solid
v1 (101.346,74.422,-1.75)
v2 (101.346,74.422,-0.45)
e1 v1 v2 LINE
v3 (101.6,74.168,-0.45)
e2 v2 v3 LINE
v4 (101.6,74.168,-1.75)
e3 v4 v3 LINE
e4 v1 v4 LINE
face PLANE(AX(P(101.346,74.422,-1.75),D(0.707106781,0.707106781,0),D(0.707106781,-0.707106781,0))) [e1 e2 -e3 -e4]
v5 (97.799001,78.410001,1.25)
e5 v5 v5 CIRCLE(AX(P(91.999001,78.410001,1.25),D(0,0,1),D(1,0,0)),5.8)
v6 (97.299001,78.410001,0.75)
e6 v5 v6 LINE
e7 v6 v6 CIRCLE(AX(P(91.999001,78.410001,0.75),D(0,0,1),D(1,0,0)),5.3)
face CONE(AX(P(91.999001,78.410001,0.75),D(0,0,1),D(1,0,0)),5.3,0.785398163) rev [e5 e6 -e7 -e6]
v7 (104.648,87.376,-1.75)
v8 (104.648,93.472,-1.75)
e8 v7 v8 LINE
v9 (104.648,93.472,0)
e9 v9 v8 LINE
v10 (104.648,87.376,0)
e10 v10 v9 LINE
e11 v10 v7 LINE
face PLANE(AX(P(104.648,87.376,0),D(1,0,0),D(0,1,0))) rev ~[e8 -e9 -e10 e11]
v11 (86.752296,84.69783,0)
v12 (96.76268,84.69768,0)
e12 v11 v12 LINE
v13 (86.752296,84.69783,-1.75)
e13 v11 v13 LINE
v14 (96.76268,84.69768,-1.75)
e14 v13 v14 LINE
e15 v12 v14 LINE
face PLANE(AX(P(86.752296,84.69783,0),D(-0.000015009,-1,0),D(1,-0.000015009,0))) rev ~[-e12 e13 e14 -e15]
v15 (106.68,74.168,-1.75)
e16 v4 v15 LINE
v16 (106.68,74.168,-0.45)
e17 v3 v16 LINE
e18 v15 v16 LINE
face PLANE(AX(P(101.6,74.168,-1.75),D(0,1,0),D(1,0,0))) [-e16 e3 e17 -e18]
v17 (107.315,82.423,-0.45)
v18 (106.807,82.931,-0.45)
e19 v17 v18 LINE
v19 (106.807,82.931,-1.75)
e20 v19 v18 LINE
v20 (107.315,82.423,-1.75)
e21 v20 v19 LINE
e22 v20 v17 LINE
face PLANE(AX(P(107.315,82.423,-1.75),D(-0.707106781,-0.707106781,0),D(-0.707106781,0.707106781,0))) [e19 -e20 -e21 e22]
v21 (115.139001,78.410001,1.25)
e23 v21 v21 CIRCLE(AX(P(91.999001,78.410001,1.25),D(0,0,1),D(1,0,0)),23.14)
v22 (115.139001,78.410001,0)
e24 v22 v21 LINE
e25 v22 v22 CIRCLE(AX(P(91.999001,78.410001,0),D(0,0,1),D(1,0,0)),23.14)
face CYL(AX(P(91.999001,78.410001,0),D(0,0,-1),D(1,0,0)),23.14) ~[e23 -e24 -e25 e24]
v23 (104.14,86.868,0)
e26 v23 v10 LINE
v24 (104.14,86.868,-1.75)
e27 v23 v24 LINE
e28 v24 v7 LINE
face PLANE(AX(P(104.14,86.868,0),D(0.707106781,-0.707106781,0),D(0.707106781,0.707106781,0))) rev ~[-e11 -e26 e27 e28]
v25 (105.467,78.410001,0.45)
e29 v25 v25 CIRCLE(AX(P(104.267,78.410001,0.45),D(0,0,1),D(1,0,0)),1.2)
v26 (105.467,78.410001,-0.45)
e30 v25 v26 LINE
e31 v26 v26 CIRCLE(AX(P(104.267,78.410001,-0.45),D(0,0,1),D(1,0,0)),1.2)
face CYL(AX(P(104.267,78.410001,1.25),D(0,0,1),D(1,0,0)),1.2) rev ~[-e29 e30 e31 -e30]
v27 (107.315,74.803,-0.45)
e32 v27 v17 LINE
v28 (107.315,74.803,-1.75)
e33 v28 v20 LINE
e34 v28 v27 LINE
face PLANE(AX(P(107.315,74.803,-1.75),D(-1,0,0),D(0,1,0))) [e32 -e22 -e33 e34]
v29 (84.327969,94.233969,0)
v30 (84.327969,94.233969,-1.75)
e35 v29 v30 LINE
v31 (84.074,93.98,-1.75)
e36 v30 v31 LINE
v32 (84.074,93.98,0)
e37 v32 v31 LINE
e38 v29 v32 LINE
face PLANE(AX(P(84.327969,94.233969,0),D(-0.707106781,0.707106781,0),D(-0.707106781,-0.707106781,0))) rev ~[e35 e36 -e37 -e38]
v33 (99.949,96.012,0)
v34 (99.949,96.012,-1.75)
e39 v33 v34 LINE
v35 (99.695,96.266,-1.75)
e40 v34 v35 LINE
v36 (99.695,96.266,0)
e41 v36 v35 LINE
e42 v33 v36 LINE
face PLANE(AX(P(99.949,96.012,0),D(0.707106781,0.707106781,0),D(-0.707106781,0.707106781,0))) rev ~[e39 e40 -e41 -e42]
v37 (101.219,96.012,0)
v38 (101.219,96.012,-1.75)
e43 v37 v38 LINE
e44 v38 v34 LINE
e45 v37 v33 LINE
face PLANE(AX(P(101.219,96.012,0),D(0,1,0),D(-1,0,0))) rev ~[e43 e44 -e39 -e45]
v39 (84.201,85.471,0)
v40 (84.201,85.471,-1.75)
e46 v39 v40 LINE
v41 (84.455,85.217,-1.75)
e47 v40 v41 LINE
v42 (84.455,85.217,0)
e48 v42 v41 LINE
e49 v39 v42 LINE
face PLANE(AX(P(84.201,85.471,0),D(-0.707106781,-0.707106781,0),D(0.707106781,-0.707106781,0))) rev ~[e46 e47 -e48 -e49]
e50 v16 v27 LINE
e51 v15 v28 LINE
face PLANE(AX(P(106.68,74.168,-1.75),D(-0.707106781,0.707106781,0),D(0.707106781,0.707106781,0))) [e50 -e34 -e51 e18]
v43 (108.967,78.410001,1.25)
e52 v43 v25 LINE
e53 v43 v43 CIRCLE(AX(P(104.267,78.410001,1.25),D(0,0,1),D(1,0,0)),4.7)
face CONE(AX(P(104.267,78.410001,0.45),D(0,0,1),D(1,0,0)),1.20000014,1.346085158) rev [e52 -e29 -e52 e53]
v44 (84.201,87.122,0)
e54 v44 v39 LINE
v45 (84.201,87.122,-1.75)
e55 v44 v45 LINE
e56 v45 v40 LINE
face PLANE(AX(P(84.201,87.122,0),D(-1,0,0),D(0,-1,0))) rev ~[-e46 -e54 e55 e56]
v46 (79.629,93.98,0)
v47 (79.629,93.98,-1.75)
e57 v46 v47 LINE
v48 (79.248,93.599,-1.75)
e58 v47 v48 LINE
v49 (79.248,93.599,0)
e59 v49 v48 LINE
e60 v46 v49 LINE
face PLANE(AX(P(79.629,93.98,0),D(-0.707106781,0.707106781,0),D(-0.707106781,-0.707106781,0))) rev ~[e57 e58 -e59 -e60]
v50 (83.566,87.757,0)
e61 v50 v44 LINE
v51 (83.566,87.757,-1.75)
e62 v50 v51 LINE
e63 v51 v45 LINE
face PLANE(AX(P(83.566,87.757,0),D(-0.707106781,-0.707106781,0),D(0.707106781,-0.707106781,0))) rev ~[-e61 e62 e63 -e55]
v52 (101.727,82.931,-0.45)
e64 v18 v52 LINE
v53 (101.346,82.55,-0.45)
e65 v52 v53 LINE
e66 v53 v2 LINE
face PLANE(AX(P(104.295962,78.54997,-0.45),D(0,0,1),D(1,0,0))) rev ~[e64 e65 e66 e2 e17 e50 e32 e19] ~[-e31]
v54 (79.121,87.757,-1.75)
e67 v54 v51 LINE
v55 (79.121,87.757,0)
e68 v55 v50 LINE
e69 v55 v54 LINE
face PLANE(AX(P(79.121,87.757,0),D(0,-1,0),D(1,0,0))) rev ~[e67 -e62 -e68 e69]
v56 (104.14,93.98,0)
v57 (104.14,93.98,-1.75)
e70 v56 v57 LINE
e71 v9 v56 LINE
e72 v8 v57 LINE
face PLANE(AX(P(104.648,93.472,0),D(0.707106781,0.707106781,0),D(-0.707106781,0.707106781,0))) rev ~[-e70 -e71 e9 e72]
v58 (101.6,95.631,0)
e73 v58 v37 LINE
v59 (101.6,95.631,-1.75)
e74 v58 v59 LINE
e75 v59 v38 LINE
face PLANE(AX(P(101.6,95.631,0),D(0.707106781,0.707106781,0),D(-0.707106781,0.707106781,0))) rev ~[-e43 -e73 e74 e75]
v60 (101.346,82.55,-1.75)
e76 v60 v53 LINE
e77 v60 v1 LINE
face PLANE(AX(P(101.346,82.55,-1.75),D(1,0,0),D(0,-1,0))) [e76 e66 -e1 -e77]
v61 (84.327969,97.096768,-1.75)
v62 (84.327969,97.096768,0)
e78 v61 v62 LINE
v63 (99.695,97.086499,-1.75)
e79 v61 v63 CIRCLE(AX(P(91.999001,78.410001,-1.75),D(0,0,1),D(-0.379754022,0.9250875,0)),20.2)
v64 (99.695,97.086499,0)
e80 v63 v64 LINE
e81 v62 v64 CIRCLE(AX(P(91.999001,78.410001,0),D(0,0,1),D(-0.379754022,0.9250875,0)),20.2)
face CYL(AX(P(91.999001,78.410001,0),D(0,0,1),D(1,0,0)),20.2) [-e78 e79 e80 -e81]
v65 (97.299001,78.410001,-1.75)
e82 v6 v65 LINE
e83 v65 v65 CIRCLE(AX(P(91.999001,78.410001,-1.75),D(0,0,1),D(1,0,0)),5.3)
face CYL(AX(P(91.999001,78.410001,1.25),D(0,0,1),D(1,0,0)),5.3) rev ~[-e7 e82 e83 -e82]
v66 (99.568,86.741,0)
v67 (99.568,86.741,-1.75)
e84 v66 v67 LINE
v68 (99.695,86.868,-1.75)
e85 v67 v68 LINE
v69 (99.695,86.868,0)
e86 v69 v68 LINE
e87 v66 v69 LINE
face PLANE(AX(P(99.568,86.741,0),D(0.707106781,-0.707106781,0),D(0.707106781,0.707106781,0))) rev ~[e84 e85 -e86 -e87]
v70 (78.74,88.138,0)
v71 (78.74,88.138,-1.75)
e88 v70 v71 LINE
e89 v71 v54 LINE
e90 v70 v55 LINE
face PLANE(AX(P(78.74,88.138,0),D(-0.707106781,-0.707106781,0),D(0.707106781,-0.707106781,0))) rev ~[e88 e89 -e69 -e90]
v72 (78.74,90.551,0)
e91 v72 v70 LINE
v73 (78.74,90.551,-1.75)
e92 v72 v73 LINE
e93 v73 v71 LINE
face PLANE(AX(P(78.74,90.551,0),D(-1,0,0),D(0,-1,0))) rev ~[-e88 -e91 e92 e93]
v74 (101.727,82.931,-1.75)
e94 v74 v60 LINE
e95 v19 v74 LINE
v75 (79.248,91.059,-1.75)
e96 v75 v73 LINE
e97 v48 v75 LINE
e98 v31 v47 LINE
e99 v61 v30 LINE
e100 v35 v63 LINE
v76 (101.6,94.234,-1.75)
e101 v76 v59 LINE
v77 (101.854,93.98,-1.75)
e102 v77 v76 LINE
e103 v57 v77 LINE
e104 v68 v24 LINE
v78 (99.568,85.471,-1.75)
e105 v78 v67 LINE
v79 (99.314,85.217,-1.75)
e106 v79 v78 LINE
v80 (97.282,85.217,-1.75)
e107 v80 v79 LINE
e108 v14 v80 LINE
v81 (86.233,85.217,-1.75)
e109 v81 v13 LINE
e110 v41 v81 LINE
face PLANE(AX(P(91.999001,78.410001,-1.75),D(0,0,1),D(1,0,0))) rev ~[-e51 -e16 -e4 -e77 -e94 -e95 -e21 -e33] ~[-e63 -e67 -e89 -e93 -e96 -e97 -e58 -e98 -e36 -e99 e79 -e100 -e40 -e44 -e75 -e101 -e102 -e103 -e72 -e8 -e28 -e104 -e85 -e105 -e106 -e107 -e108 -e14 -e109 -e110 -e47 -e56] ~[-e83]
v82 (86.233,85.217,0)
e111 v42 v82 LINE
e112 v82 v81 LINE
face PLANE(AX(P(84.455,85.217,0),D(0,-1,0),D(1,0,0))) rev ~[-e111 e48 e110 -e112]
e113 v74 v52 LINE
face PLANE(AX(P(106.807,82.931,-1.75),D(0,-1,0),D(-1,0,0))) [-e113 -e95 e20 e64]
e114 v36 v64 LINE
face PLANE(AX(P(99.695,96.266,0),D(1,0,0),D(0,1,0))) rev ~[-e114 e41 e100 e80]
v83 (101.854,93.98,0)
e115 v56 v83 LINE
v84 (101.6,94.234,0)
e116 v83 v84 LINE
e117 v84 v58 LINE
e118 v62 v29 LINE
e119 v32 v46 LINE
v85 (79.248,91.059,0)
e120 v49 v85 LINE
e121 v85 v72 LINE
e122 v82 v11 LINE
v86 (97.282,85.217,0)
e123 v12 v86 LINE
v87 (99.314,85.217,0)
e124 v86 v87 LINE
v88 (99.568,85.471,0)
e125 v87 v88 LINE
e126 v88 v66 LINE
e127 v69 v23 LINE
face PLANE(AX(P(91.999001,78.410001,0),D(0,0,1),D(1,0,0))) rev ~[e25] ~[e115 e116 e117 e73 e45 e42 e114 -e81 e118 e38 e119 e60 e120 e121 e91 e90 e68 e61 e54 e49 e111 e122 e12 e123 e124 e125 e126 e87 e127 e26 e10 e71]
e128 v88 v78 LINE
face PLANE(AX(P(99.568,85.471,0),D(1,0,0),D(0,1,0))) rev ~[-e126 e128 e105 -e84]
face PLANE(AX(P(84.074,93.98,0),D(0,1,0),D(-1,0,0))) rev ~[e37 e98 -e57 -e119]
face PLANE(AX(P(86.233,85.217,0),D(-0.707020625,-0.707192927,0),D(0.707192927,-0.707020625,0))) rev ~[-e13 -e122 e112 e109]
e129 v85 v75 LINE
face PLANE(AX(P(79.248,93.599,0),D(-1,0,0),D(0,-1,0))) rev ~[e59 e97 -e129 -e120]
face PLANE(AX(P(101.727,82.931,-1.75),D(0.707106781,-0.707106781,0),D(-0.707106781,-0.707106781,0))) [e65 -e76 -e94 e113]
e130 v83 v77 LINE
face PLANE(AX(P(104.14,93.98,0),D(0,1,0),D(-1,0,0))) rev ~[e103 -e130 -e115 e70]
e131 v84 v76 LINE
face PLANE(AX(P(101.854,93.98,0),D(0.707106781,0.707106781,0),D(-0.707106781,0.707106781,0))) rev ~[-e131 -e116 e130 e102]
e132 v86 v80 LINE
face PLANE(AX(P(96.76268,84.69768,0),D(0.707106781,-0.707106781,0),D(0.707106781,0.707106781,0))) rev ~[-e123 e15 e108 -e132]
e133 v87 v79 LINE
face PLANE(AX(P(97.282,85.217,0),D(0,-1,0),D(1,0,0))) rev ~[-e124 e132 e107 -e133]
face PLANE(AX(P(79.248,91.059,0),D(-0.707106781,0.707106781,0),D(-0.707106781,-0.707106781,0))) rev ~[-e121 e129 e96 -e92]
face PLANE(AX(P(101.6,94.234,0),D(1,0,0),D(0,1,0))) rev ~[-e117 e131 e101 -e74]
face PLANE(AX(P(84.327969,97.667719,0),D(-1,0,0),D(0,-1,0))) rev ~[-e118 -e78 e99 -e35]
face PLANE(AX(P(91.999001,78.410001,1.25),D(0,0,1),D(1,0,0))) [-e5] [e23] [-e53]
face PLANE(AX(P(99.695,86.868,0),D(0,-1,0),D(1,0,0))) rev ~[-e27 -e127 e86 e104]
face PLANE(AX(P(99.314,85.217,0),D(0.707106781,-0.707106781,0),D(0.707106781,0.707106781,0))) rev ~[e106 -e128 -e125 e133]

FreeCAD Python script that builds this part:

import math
import FreeCAD as App
import Part
import Sketcher
Q = App.Units.Quantity


def edges_at(feature, points):
    """Names of the edges that pass closest to the given points."""
    edges = feature.Shape.Edges
    near = lambda p: min(range(len(edges)), key=lambda i: edges[i].distToShape(Part.Vertex(*p))[0])
    return sorted({f"Edge{near(p) + 1}" for p in points})

doc = App.newDocument("Part")
body = doc.addObject("PartDesign::Body", "Body")

# Sketch on XY plane
sketch1 = body.newObject("Sketcher::SketchObject", "Sketch")
sketch1.AttachmentSupport = (doc.getObject("XY_Plane"), [""])
sketch1.MapMode = "FlatFace"
sketch1.addGeometry(Part.Circle(App.Vector(92, 78, 0), App.Vector(0, 0, 1), 23), False)
sketch1.addConstraint([
    Sketcher.Constraint("Diameter", 0, 46.28),
    Sketcher.Constraint("DistanceX", -1, 1, 0, 3, 91.999001),
    Sketcher.Constraint("DistanceY", -1, 1, 0, 3, 78.410001),
])
pad1 = body.newObject("PartDesign::Pad", "Pad")
pad1.Profile = sketch1
pad1.Length = 1.25

# Sketch on XY plane
sketch2 = body.newObject("Sketcher::SketchObject", "Sketch001")
sketch2.AttachmentSupport = (doc.getObject("XY_Plane"), [""])
sketch2.MapMode = "FlatFace"
sketch2.addGeometry(Part.Circle(App.Vector(92, 78, 0), App.Vector(0, 0, 1), 20), False)
sketch2.addConstraint([
    Sketcher.Constraint("Diameter", 0, 40.4),
    Sketcher.Constraint("DistanceX", -1, 1, 0, 3, 91.999001),
    Sketcher.Constraint("DistanceY", -1, 1, 0, 3, 78.410001),
])
pad2 = body.newObject("PartDesign::Pad", "Pad001")
pad2.Profile = sketch2
pad2.Length = 1.75
pad2.Reversed = True

# Sketch on XY plane
sketch3 = body.newObject("Sketcher::SketchObject", "Sketch002")
sketch3.AttachmentSupport = (doc.getObject("XY_Plane"), [""])
sketch3.MapMode = "FlatFace"
sketch3.addGeometry([
    Part.LineSegment(App.Vector(99.69, 96.27, 0), App.Vector(99.69, 97.66, 0)),  # 0
    Part.ArcOfCircle(Part.Circle(App.Vector(92, 78.41, 0), App.Vector(0, 0, 1), 20.73), math.radians(68), math.radians(112)),  # 1
    Part.LineSegment(App.Vector(84.33, 97.67, 0), App.Vector(84.33, 94.23, 0)),  # 2
    Part.LineSegment(App.Vector(84.33, 94.23, 0), App.Vector(84.07, 93.98, 0)),  # 3
    Part.LineSegment(App.Vector(84.07, 93.98, 0), App.Vector(79.63, 93.98, 0)),  # 4
    Part.LineSegment(App.Vector(79.63, 93.98, 0), App.Vector(79.25, 93.6, 0)),  # 5
    Part.LineSegment(App.Vector(79.25, 93.6, 0), App.Vector(79.25, 91.06, 0)),  # 6
    Part.LineSegment(App.Vector(79.25, 91.06, 0), App.Vector(78.74, 90.55, 0)),  # 7
    Part.LineSegment(App.Vector(78.74, 90.55, 0), App.Vector(78.74, 88.14, 0)),  # 8
    Part.LineSegment(App.Vector(78.74, 88.14, 0), App.Vector(79.12, 87.76, 0)),  # 9
    Part.LineSegment(App.Vector(79.12, 87.76, 0), App.Vector(83.57, 87.76, 0)),  # 10
    Part.LineSegment(App.Vector(83.57, 87.76, 0), App.Vector(84.2, 87.12, 0)),  # 11
    Part.LineSegment(App.Vector(84.2, 87.12, 0), App.Vector(84.2, 85.47, 0)),  # 12
    Part.LineSegment(App.Vector(84.2, 85.47, 0), App.Vector(84.45, 85.22, 0)),  # 13
    Part.LineSegment(App.Vector(84.45, 85.22, 0), App.Vector(86.23, 85.22, 0)),  # 14
    Part.LineSegment(App.Vector(86.23, 85.22, 0), App.Vector(86.75, 84.7, 0)),  # 15
    Part.LineSegment(App.Vector(86.75, 84.7, 0), App.Vector(96.76, 84.7, 0)),  # 16
    Part.LineSegment(App.Vector(96.76, 84.7, 0), App.Vector(97.28, 85.22, 0)),  # 17
    Part.LineSegment(App.Vector(97.28, 85.22, 0), App.Vector(99.31, 85.22, 0)),  # 18
    Part.LineSegment(App.Vector(99.31, 85.22, 0), App.Vector(99.57, 85.47, 0)),  # 19
    Part.LineSegment(App.Vector(99.57, 85.47, 0), App.Vector(99.57, 86.74, 0)),  # 20
    Part.LineSegment(App.Vector(99.57, 86.74, 0), App.Vector(99.69, 86.87, 0)),  # 21
    Part.LineSegment(App.Vector(99.69, 86.87, 0), App.Vector(104.14, 86.87, 0)),  # 22
    Part.LineSegment(App.Vector(104.14, 86.87, 0), App.Vector(104.65, 87.38, 0)),  # 23
    Part.LineSegment(App.Vector(104.65, 87.38, 0), App.Vector(104.65, 93.47, 0)),  # 24
    Part.LineSegment(App.Vector(104.65, 93.47, 0), App.Vector(104.14, 93.98, 0)),  # 25
    Part.LineSegment(App.Vector(104.14, 93.98, 0), App.Vector(101.85, 93.98, 0)),  # 26
    Part.LineSegment(App.Vector(101.85, 93.98, 0), App.Vector(101.6, 94.23, 0)),  # 27
    Part.LineSegment(App.Vector(101.6, 94.23, 0), App.Vector(101.6, 95.63, 0)),  # 28
    Part.LineSegment(App.Vector(101.6, 95.63, 0), App.Vector(101.22, 96.01, 0)),  # 29
    Part.LineSegment(App.Vector(101.22, 96.01, 0), App.Vector(99.95, 96.01, 0)),  # 30
    Part.LineSegment(App.Vector(99.95, 96.01, 0), App.Vector(99.69, 96.27, 0)),  # 31
], False)
sketch3.addConstraint([
    Sketcher.Constraint("Coincident", 0, 2, 1, 1),
    Sketcher.Constraint("Coincident", 1, 2, 2, 1),
    Sketcher.Constraint("Coincident", 2, 2, 3, 1),
    Sketcher.Constraint("Coincident", 3, 2, 4, 1),
    Sketcher.Constraint("Coincident", 4, 2, 5, 1),
    Sketcher.Constraint("Coincident", 5, 2, 6, 1),
    Sketcher.Constraint("Coincident", 6, 2, 7, 1),
    Sketcher.Constraint("Coincident", 7, 2, 8, 1),
    Sketcher.Constraint("Coincident", 8, 2, 9, 1),
    Sketcher.Constraint("Coincident", 9, 2, 10, 1),
    Sketcher.Constraint("Coincident", 10, 2, 11, 1),
    Sketcher.Constraint("Coincident", 11, 2, 12, 1),
    Sketcher.Constraint("Coincident", 12, 2, 13, 1),
    Sketcher.Constraint("Coincident", 13, 2, 14, 1),
    Sketcher.Constraint("Coincident", 14, 2, 15, 1),
    Sketcher.Constraint("Coincident", 15, 2, 16, 1),
    Sketcher.Constraint("Coincident", 16, 2, 17, 1),
    Sketcher.Constraint("Coincident", 17, 2, 18, 1),
    Sketcher.Constraint("Coincident", 18, 2, 19, 1),
    Sketcher.Constraint("Coincident", 19, 2, 20, 1),
    Sketcher.Constraint("Coincident", 20, 2, 21, 1),
    Sketcher.Constraint("Coincident", 21, 2, 22, 1),
    Sketcher.Constraint("Coincident", 22, 2, 23, 1),
    Sketcher.Constraint("Coincident", 23, 2, 24, 1),
    Sketcher.Constraint("Coincident", 24, 2, 25, 1),
    Sketcher.Constraint("Coincident", 25, 2, 26, 1),
    Sketcher.Constraint("Coincident", 26, 2, 27, 1),
    Sketcher.Constraint("Coincident", 27, 2, 28, 1),
    Sketcher.Constraint("Coincident", 28, 2, 29, 1),
    Sketcher.Constraint("Coincident", 29, 2, 30, 1),
    Sketcher.Constraint("Coincident", 30, 2, 31, 1),
    Sketcher.Constraint("Coincident", 31, 2, 0, 1),
    Sketcher.Constraint("Vertical", 0),
    Sketcher.Constraint("Vertical", 2),
    Sketcher.Constraint("Horizontal", 4),
    Sketcher.Constraint("Vertical", 6),
    Sketcher.Constraint("Vertical", 8),
    Sketcher.Constraint("Horizontal", 10),
    Sketcher.Constraint("Vertical", 12),
    Sketcher.Constraint("Horizontal", 14),
    Sketcher.Constraint("Horizontal", 18),
    Sketcher.Constraint("Vertical", 20),
    Sketcher.Constraint("Horizontal", 22),
    Sketcher.Constraint("Vertical", 24),
    Sketcher.Constraint("Horizontal", 26),
    Sketcher.Constraint("Vertical", 28),
    Sketcher.Constraint("Horizontal", 30),
    Sketcher.Constraint("Parallel", 3, 5),
    Sketcher.Constraint("Parallel", 5, 7),
    Sketcher.Constraint("Perpendicular", 7, 9),
    Sketcher.Constraint("Parallel", 9, 11),
    Sketcher.Constraint("Parallel", 11, 13),
    Sketcher.Constraint("Perpendicular", 13, 17),
    Sketcher.Constraint("Parallel", 17, 19),
    Sketcher.Constraint("Parallel", 19, 21),
    Sketcher.Constraint("Parallel", 21, 23),
    Sketcher.Constraint("Perpendicular", 23, 25),
    Sketcher.Constraint("Parallel", 25, 27),
    Sketcher.Constraint("Parallel", 27, 29),
    Sketcher.Constraint("Parallel", 29, 31),
    Sketcher.Constraint("Horizontal", 14, 2, 17, 2),
    Sketcher.Constraint("Horizontal", 12, 2, 19, 2),
    Sketcher.Constraint("Horizontal", 4, 2, 25, 2),
    Sketcher.Constraint("Vertical", 0, 2, 21, 2),
    Sketcher.Constraint("Vertical", 22, 2, 25, 2),
    Sketcher.Constraint("Equal", 4, 10),
    Sketcher.Constraint("Equal", 10, 22),
    Sketcher.Constraint("Equal", 30, 20),
    Sketcher.Constraint("Equal", 5, 9),
    Sketcher.Constraint("Equal", 13, 19),
    Sketcher.Constraint("Equal", 7, 23),
    Sketcher.Constraint("Equal", 19, 27),
    Sketcher.Constraint("Equal", 9, 29),
    Sketcher.Constraint("Equal", 27, 31),
    Sketcher.Constraint("DistanceY", 6, 2, 6, 1, Q("0.1 in")),
    Sketcher.Constraint("DistanceX", -1, 1, 27, 2, Q("4 in")),
    Sketcher.Constraint("DistanceX", 14, 1, 14, 2, Q("0.07 in")),
    Sketcher.Constraint("DistanceX", 18, 1, 18, 2, Q("0.08 in")),
    Sketcher.Constraint("DistanceX", 26, 2, 26, 1, Q("0.09 in")),
    Sketcher.Constraint("DistanceX", 30, 2, 30, 1, Q("0.05 in")),
    Sketcher.Constraint("DistanceY", 24, 1, 24, 2, Q("0.24 in")),
    Sketcher.Constraint("DistanceY", -1, 1, 3, 2, Q("3.7 in")),
    Sketcher.Constraint("DistanceX", -1, 1, 7, 2, Q("3.1 in")),
    Sketcher.Constraint("DistanceX", -1, 1, 22, 2, Q("4.1 in")),
    Sketcher.Constraint("DistanceX", 9, 2, 11, 2, Q("0.2 in")),
    Sketcher.Constraint("DistanceY", 12, 2, 7, 2, Q("0.2 in")),
    Sketcher.Constraint("DistanceY", 13, 2, 10, 2, Q("0.1 in")),
    Sketcher.Constraint("DistanceX", 20, 2, 23, 2, Q("0.2 in")),
    Sketcher.Constraint("DistanceY", 28, 1, 28, 2, Q("0.055 in")),
    Sketcher.Constraint("DistanceX", -1, 1, 3, 2, Q("3.31 in")),
    Sketcher.Constraint("Radius", 1, 20.729997),
    Sketcher.Constraint("DistanceY", 2, 2, 2, 1, 3.43375),
    Sketcher.Constraint("Distance", 17, 0.734429),
    Sketcher.Constraint("DistanceY", 0, 1, 0, 2, 1.392416),
    Sketcher.Constraint("DistanceX", -1, 1, 1, 3, 91.999829),
    Sketcher.Constraint("DistanceY", -1, 1, 15, 2, 84.69783),
    Sketcher.Constraint("Distance", 15, 0.734306),
])
pocket1 = body.newObject("PartDesign::Pocket", "Pocket")
pocket1.Profile = sketch3
pocket1.Length = 1.75

# Sketch on XY plane
sketch4 = body.newObject("Sketcher::SketchObject", "Sketch003")
sketch4.AttachmentSupport = (doc.getObject("XY_Plane"), [""])
sketch4.MapMode = "FlatFace"
sketch4.AttachmentOffset = App.Placement(App.Vector(0, 0, 1.25), App.Rotation())
sketch4.addGeometry([
    Part.Circle(App.Vector(104.3, 78.4, 0), App.Vector(0, 0, 1), 1.2),
    Part.Circle(App.Vector(92, 78.4, 0), App.Vector(0, 0, 1), 5.3),
], False)
sketch4.addConstraint([
    Sketcher.Constraint("Horizontal", 0, 3, 1, 3),
    Sketcher.Constraint("Diameter", 0, 2.4),
    Sketcher.Constraint("Diameter", 1, 10.6),
    Sketcher.Constraint("DistanceX", -1, 1, 0, 3, Q("4.105 in")),
    Sketcher.Constraint("DistanceY", -1, 1, 0, 3, 78.410001),
    Sketcher.Constraint("DistanceX", -1, 1, 1, 3, 91.999001),
])
pocket2 = body.newObject("PartDesign::Pocket", "Pocket001")
pocket2.Profile = sketch4
pocket2.Length = 3
doc.recompute()

chamfer = body.newObject("PartDesign::Chamfer", "Chamfer")
chamfer.Base = (pocket2, edges_at(pocket2, [(103.067, 78.41, 1.25)]))
chamfer.ChamferType = "Two distances"
chamfer.Size = 3.5
chamfer.Size2 = 0.8
doc.recompute()

chamfer2 = body.newObject("PartDesign::Chamfer", "Chamfer001")
chamfer2.Base = (chamfer, edges_at(chamfer, [(86.699, 78.41, 1.25)]))
chamfer2.Size = 0.5

# Sketch on XY plane
sketch5 = body.newObject("Sketcher::SketchObject", "Sketch004")
sketch5.AttachmentSupport = (doc.getObject("XY_Plane"), [""])
sketch5.MapMode = "FlatFace"
sketch5.AttachmentOffset = App.Placement(App.Vector(0, 0, -1.75), App.Rotation())
sketch5.addGeometry([
    Part.LineSegment(App.Vector(101.73, 82.93, 0), App.Vector(101.35, 82.55, 0)),  # 0
    Part.LineSegment(App.Vector(101.35, 82.55, 0), App.Vector(101.35, 74.42, 0)),  # 1
    Part.LineSegment(App.Vector(101.35, 74.42, 0), App.Vector(101.6, 74.17, 0)),  # 2
    Part.LineSegment(App.Vector(101.6, 74.17, 0), App.Vector(106.68, 74.17, 0)),  # 3
    Part.LineSegment(App.Vector(106.68, 74.17, 0), App.Vector(107.31, 74.8, 0)),  # 4
    Part.LineSegment(App.Vector(107.31, 74.8, 0), App.Vector(107.31, 82.42, 0)),  # 5
    Part.LineSegment(App.Vector(107.31, 82.42, 0), App.Vector(106.81, 82.93, 0)),  # 6
    Part.LineSegment(App.Vector(106.81, 82.93, 0), App.Vector(101.73, 82.93, 0)),  # 7
], False)
sketch5.addConstraint([
    Sketcher.Constraint("Coincident", 0, 2, 1, 1),
    Sketcher.Constraint("Coincident", 1, 2, 2, 1),
    Sketcher.Constraint("Coincident", 2, 2, 3, 1),
    Sketcher.Constraint("Coincident", 3, 2, 4, 1),
    Sketcher.Constraint("Coincident", 4, 2, 5, 1),
    Sketcher.Constraint("Coincident", 5, 2, 6, 1),
    Sketcher.Constraint("Coincident", 6, 2, 7, 1),
    Sketcher.Constraint("Coincident", 7, 2, 0, 1),
    Sketcher.Constraint("Vertical", 1),
    Sketcher.Constraint("Horizontal", 3),
    Sketcher.Constraint("Vertical", 5),
    Sketcher.Constraint("Horizontal", 7),
    Sketcher.Constraint("Perpendicular", 0, 2),
    Sketcher.Constraint("Perpendicular", 2, 4),
    Sketcher.Constraint("Perpendicular", 4, 6),
    Sketcher.Constraint("Equal", 3, 7),
    Sketcher.Constraint("DistanceX", 3, 1, 3, 2, Q("0.2 in")),
    Sketcher.Constraint("DistanceY", 5, 1, 5, 2, Q("0.3 in")),
    Sketcher.Constraint("DistanceX", -1, 1, 2, 2, Q("4 in")),
    Sketcher.Constraint("Angle", 0, Q("-135 deg")),
    Sketcher.Constraint("DistanceY", 1, 2, 1, 1, Q("0.32 in")),
    Sketcher.Constraint("DistanceX", -1, 1, 0, 2, Q("3.99 in")),
    Sketcher.Constraint("DistanceY", -1, 1, 0, 2, Q("3.25 in")),
    Sketcher.Constraint("DistanceX", -1, 1, 4, 2, Q("4.225 in")),
])
pocket3 = body.newObject("PartDesign::Pocket", "Pocket002")
pocket3.Profile = sketch5
pocket3.Length = 1.3
pocket3.Reversed = True

doc.recompute()
